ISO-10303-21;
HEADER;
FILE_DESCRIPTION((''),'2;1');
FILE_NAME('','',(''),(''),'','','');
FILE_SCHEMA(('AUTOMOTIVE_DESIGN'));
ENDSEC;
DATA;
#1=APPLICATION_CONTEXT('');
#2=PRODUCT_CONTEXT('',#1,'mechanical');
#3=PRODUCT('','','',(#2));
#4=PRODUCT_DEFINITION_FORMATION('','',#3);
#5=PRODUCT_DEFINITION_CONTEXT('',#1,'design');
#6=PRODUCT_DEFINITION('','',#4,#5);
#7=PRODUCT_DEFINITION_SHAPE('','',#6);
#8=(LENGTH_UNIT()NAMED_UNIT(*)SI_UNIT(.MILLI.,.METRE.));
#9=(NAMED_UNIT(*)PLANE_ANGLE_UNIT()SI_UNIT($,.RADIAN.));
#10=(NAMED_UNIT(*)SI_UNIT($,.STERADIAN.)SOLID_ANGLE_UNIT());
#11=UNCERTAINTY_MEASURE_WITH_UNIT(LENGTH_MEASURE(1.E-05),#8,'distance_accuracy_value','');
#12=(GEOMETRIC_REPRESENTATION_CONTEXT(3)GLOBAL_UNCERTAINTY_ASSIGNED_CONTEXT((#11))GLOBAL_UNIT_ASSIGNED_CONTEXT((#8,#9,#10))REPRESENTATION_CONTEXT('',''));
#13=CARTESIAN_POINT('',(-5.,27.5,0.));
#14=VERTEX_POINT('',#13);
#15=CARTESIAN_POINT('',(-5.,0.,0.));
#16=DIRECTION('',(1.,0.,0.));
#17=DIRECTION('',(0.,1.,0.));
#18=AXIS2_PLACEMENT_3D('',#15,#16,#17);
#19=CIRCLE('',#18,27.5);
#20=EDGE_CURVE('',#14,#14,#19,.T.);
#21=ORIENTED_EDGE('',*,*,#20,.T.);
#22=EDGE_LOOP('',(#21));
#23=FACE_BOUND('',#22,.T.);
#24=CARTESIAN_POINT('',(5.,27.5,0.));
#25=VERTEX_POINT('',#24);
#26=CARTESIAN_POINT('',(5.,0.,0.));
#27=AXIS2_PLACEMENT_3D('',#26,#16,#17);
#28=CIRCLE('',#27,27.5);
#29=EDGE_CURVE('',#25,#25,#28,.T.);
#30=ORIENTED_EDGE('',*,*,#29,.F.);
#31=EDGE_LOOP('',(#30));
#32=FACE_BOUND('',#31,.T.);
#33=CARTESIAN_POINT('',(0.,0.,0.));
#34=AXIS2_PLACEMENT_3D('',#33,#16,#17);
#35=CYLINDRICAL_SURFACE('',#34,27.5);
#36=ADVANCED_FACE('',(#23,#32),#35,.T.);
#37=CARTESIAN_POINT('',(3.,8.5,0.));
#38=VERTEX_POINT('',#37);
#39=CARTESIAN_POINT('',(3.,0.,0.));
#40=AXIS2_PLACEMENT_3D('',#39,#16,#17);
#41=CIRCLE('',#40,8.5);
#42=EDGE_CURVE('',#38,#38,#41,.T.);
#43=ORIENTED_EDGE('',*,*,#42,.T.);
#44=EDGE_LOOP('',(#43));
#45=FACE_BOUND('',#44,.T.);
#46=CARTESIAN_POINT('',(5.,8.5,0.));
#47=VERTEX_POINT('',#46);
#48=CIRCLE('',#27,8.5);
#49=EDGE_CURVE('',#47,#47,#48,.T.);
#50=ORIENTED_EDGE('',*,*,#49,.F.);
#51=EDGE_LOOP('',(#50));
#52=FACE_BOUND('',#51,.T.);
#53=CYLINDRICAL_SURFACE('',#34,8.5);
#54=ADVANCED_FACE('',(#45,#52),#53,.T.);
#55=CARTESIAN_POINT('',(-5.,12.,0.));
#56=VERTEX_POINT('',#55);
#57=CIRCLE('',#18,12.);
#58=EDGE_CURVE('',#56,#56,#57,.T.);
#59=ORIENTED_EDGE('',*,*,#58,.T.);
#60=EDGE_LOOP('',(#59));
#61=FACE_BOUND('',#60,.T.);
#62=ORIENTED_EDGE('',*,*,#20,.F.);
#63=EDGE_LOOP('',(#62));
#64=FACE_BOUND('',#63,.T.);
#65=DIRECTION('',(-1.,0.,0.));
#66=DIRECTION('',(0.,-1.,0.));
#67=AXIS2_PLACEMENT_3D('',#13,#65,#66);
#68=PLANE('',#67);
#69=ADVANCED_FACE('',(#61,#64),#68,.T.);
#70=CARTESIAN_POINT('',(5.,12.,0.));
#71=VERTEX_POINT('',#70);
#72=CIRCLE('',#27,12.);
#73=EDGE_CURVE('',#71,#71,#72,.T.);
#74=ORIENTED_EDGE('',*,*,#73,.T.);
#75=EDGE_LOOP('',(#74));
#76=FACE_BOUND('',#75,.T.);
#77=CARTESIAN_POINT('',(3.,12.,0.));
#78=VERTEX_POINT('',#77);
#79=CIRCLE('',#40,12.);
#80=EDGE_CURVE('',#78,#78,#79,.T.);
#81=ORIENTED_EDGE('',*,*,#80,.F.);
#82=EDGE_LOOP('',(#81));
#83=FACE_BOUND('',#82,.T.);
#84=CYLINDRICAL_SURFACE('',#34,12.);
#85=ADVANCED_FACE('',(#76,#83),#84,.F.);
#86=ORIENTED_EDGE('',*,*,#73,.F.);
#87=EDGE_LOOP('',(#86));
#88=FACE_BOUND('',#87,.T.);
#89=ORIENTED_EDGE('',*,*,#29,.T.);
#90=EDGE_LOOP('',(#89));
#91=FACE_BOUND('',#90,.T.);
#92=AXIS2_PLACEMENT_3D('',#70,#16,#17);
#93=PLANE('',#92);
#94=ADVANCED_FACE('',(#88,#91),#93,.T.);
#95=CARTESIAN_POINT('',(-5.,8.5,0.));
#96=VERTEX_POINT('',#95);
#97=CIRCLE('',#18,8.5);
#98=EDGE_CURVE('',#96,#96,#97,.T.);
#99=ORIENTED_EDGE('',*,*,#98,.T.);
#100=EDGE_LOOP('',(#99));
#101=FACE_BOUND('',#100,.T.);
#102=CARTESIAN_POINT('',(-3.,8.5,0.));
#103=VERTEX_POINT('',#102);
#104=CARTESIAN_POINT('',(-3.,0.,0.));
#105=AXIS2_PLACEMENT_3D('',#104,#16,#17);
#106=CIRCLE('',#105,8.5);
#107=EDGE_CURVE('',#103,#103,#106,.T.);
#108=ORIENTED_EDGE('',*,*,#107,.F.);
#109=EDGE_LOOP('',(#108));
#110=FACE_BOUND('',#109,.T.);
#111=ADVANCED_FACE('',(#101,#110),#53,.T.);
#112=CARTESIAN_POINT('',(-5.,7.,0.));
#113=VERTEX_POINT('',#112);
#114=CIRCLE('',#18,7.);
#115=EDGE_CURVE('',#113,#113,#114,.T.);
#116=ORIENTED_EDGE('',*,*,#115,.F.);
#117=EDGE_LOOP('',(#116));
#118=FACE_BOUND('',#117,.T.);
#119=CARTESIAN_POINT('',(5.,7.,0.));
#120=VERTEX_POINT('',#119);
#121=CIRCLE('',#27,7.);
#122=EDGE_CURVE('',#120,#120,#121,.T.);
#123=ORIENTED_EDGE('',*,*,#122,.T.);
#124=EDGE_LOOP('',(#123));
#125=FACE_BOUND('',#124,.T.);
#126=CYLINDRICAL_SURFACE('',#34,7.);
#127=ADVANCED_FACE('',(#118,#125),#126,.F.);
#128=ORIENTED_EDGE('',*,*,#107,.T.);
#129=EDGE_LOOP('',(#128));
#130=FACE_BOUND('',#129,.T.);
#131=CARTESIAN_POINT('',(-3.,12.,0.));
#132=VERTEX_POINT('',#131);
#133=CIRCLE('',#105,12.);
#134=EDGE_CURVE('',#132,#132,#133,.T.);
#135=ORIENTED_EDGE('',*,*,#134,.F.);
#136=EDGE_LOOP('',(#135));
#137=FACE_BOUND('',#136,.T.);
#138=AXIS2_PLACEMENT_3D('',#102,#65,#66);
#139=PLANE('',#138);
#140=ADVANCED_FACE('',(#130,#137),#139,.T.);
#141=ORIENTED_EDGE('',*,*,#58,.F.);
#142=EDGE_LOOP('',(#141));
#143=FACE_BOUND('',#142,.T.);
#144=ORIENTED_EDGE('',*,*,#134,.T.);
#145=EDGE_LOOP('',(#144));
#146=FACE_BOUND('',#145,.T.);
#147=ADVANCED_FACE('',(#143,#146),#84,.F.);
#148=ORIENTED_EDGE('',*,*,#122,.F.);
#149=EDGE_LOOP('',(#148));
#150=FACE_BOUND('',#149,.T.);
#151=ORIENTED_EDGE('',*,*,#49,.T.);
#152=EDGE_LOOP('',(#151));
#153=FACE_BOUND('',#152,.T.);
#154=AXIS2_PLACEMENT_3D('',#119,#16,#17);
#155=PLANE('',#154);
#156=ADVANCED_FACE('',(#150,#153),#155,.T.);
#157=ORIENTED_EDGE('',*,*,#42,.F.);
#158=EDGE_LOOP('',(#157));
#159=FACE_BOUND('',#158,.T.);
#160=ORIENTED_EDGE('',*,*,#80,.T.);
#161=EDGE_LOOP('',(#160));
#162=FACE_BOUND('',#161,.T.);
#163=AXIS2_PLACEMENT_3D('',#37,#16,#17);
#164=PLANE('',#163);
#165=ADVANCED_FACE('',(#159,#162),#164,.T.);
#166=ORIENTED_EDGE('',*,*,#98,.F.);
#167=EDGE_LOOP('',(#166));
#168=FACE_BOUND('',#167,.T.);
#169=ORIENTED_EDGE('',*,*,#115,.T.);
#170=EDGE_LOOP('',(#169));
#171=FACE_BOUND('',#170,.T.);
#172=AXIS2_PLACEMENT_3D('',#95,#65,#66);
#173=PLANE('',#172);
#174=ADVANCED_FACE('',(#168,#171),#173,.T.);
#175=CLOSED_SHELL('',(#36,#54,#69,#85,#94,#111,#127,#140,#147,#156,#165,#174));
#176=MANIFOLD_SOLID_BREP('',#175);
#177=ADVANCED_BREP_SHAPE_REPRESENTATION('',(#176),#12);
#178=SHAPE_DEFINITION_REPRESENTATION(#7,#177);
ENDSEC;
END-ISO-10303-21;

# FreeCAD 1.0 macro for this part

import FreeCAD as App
import Part
import Sketcher
Q = App.Units.Quantity


def add_polygon(sketch, points):
    """Adds a closed chain of lines whose ends are joined by coincident constraints."""
    first, n = sketch.GeometryCount, len(points)
    for a, b in zip(points, points[1:] + points[:1]):
        sketch.addGeometry(Part.LineSegment(App.Vector(*a, 0), App.Vector(*b, 0)), False)
    for i in range(n):
        sketch.addConstraint(Sketcher.Constraint("Coincident", first + i, 2, first + (i + 1) % n, 1))

doc = App.newDocument("Part")
body = doc.addObject("PartDesign::Body", "Body")

# Sketch on XY plane
sketch1 = body.newObject("Sketcher::SketchObject", "Sketch")
sketch1.AttachmentSupport = (doc.getObject("XY_Plane"), [""])
sketch1.MapMode = "FlatFace"
add_polygon(sketch1, [(-5, 7), (5, 7), (5, 8.5), (3, 8.5), (3, 12), (5, 12), (5, 27.5), (-5, 27.5), (-5, 12), (-3, 12), (-3, 8.5), (-5, 8.5)])  # lines 0-11
sketch1.addConstraint([
    Sketcher.Constraint("Horizontal", 0),
    Sketcher.Constraint("Vertical", 1),
    Sketcher.Constraint("Horizontal", 2),
    Sketcher.Constraint("Vertical", 3),
    Sketcher.Constraint("Horizontal", 4),
    Sketcher.Constraint("Vertical", 5),
    Sketcher.Constraint("Horizontal", 6),
    Sketcher.Constraint("Vertical", 7),
    Sketcher.Constraint("Horizontal", 8),
    Sketcher.Constraint("Vertical", 9),
    Sketcher.Constraint("Horizontal", 10),
    Sketcher.Constraint("Vertical", 11),
    Sketcher.Constraint("Symmetric", 4, 2, 7, 2, -2),
    Sketcher.Constraint("Symmetric", 2, 2, 9, 2, -2),
    Sketcher.Constraint("Vertical", 1, 2, 4, 2),
    Sketcher.Constraint("Vertical", 7, 2, 10, 2),
    Sketcher.Constraint("DistanceX", 0, 1, 0, 2, Q("10 mm")),
    Sketcher.Constraint("DistanceX", 2, 2, 2, 1, Q("2 mm")),
    Sketcher.Constraint("DistanceY", 1, 1, 1, 2, Q("1.5 mm")),
    Sketcher.Constraint("DistanceY", 3, 1, 3, 2, Q("3.5 mm")),
    Sketcher.Constraint("DistanceY", 5, 1, 5, 2, Q("15.5 mm")),
    Sketcher.Constraint("DistanceY", -1, 1, 0, 2, Q("7 mm")),
])
revolution = body.newObject("PartDesign::Revolution", "Revolution")
revolution.Profile = sketch1
revolution.ReferenceAxis = (sketch1, ["H_Axis"])
revolution.Angle = 360

doc.recompute()
